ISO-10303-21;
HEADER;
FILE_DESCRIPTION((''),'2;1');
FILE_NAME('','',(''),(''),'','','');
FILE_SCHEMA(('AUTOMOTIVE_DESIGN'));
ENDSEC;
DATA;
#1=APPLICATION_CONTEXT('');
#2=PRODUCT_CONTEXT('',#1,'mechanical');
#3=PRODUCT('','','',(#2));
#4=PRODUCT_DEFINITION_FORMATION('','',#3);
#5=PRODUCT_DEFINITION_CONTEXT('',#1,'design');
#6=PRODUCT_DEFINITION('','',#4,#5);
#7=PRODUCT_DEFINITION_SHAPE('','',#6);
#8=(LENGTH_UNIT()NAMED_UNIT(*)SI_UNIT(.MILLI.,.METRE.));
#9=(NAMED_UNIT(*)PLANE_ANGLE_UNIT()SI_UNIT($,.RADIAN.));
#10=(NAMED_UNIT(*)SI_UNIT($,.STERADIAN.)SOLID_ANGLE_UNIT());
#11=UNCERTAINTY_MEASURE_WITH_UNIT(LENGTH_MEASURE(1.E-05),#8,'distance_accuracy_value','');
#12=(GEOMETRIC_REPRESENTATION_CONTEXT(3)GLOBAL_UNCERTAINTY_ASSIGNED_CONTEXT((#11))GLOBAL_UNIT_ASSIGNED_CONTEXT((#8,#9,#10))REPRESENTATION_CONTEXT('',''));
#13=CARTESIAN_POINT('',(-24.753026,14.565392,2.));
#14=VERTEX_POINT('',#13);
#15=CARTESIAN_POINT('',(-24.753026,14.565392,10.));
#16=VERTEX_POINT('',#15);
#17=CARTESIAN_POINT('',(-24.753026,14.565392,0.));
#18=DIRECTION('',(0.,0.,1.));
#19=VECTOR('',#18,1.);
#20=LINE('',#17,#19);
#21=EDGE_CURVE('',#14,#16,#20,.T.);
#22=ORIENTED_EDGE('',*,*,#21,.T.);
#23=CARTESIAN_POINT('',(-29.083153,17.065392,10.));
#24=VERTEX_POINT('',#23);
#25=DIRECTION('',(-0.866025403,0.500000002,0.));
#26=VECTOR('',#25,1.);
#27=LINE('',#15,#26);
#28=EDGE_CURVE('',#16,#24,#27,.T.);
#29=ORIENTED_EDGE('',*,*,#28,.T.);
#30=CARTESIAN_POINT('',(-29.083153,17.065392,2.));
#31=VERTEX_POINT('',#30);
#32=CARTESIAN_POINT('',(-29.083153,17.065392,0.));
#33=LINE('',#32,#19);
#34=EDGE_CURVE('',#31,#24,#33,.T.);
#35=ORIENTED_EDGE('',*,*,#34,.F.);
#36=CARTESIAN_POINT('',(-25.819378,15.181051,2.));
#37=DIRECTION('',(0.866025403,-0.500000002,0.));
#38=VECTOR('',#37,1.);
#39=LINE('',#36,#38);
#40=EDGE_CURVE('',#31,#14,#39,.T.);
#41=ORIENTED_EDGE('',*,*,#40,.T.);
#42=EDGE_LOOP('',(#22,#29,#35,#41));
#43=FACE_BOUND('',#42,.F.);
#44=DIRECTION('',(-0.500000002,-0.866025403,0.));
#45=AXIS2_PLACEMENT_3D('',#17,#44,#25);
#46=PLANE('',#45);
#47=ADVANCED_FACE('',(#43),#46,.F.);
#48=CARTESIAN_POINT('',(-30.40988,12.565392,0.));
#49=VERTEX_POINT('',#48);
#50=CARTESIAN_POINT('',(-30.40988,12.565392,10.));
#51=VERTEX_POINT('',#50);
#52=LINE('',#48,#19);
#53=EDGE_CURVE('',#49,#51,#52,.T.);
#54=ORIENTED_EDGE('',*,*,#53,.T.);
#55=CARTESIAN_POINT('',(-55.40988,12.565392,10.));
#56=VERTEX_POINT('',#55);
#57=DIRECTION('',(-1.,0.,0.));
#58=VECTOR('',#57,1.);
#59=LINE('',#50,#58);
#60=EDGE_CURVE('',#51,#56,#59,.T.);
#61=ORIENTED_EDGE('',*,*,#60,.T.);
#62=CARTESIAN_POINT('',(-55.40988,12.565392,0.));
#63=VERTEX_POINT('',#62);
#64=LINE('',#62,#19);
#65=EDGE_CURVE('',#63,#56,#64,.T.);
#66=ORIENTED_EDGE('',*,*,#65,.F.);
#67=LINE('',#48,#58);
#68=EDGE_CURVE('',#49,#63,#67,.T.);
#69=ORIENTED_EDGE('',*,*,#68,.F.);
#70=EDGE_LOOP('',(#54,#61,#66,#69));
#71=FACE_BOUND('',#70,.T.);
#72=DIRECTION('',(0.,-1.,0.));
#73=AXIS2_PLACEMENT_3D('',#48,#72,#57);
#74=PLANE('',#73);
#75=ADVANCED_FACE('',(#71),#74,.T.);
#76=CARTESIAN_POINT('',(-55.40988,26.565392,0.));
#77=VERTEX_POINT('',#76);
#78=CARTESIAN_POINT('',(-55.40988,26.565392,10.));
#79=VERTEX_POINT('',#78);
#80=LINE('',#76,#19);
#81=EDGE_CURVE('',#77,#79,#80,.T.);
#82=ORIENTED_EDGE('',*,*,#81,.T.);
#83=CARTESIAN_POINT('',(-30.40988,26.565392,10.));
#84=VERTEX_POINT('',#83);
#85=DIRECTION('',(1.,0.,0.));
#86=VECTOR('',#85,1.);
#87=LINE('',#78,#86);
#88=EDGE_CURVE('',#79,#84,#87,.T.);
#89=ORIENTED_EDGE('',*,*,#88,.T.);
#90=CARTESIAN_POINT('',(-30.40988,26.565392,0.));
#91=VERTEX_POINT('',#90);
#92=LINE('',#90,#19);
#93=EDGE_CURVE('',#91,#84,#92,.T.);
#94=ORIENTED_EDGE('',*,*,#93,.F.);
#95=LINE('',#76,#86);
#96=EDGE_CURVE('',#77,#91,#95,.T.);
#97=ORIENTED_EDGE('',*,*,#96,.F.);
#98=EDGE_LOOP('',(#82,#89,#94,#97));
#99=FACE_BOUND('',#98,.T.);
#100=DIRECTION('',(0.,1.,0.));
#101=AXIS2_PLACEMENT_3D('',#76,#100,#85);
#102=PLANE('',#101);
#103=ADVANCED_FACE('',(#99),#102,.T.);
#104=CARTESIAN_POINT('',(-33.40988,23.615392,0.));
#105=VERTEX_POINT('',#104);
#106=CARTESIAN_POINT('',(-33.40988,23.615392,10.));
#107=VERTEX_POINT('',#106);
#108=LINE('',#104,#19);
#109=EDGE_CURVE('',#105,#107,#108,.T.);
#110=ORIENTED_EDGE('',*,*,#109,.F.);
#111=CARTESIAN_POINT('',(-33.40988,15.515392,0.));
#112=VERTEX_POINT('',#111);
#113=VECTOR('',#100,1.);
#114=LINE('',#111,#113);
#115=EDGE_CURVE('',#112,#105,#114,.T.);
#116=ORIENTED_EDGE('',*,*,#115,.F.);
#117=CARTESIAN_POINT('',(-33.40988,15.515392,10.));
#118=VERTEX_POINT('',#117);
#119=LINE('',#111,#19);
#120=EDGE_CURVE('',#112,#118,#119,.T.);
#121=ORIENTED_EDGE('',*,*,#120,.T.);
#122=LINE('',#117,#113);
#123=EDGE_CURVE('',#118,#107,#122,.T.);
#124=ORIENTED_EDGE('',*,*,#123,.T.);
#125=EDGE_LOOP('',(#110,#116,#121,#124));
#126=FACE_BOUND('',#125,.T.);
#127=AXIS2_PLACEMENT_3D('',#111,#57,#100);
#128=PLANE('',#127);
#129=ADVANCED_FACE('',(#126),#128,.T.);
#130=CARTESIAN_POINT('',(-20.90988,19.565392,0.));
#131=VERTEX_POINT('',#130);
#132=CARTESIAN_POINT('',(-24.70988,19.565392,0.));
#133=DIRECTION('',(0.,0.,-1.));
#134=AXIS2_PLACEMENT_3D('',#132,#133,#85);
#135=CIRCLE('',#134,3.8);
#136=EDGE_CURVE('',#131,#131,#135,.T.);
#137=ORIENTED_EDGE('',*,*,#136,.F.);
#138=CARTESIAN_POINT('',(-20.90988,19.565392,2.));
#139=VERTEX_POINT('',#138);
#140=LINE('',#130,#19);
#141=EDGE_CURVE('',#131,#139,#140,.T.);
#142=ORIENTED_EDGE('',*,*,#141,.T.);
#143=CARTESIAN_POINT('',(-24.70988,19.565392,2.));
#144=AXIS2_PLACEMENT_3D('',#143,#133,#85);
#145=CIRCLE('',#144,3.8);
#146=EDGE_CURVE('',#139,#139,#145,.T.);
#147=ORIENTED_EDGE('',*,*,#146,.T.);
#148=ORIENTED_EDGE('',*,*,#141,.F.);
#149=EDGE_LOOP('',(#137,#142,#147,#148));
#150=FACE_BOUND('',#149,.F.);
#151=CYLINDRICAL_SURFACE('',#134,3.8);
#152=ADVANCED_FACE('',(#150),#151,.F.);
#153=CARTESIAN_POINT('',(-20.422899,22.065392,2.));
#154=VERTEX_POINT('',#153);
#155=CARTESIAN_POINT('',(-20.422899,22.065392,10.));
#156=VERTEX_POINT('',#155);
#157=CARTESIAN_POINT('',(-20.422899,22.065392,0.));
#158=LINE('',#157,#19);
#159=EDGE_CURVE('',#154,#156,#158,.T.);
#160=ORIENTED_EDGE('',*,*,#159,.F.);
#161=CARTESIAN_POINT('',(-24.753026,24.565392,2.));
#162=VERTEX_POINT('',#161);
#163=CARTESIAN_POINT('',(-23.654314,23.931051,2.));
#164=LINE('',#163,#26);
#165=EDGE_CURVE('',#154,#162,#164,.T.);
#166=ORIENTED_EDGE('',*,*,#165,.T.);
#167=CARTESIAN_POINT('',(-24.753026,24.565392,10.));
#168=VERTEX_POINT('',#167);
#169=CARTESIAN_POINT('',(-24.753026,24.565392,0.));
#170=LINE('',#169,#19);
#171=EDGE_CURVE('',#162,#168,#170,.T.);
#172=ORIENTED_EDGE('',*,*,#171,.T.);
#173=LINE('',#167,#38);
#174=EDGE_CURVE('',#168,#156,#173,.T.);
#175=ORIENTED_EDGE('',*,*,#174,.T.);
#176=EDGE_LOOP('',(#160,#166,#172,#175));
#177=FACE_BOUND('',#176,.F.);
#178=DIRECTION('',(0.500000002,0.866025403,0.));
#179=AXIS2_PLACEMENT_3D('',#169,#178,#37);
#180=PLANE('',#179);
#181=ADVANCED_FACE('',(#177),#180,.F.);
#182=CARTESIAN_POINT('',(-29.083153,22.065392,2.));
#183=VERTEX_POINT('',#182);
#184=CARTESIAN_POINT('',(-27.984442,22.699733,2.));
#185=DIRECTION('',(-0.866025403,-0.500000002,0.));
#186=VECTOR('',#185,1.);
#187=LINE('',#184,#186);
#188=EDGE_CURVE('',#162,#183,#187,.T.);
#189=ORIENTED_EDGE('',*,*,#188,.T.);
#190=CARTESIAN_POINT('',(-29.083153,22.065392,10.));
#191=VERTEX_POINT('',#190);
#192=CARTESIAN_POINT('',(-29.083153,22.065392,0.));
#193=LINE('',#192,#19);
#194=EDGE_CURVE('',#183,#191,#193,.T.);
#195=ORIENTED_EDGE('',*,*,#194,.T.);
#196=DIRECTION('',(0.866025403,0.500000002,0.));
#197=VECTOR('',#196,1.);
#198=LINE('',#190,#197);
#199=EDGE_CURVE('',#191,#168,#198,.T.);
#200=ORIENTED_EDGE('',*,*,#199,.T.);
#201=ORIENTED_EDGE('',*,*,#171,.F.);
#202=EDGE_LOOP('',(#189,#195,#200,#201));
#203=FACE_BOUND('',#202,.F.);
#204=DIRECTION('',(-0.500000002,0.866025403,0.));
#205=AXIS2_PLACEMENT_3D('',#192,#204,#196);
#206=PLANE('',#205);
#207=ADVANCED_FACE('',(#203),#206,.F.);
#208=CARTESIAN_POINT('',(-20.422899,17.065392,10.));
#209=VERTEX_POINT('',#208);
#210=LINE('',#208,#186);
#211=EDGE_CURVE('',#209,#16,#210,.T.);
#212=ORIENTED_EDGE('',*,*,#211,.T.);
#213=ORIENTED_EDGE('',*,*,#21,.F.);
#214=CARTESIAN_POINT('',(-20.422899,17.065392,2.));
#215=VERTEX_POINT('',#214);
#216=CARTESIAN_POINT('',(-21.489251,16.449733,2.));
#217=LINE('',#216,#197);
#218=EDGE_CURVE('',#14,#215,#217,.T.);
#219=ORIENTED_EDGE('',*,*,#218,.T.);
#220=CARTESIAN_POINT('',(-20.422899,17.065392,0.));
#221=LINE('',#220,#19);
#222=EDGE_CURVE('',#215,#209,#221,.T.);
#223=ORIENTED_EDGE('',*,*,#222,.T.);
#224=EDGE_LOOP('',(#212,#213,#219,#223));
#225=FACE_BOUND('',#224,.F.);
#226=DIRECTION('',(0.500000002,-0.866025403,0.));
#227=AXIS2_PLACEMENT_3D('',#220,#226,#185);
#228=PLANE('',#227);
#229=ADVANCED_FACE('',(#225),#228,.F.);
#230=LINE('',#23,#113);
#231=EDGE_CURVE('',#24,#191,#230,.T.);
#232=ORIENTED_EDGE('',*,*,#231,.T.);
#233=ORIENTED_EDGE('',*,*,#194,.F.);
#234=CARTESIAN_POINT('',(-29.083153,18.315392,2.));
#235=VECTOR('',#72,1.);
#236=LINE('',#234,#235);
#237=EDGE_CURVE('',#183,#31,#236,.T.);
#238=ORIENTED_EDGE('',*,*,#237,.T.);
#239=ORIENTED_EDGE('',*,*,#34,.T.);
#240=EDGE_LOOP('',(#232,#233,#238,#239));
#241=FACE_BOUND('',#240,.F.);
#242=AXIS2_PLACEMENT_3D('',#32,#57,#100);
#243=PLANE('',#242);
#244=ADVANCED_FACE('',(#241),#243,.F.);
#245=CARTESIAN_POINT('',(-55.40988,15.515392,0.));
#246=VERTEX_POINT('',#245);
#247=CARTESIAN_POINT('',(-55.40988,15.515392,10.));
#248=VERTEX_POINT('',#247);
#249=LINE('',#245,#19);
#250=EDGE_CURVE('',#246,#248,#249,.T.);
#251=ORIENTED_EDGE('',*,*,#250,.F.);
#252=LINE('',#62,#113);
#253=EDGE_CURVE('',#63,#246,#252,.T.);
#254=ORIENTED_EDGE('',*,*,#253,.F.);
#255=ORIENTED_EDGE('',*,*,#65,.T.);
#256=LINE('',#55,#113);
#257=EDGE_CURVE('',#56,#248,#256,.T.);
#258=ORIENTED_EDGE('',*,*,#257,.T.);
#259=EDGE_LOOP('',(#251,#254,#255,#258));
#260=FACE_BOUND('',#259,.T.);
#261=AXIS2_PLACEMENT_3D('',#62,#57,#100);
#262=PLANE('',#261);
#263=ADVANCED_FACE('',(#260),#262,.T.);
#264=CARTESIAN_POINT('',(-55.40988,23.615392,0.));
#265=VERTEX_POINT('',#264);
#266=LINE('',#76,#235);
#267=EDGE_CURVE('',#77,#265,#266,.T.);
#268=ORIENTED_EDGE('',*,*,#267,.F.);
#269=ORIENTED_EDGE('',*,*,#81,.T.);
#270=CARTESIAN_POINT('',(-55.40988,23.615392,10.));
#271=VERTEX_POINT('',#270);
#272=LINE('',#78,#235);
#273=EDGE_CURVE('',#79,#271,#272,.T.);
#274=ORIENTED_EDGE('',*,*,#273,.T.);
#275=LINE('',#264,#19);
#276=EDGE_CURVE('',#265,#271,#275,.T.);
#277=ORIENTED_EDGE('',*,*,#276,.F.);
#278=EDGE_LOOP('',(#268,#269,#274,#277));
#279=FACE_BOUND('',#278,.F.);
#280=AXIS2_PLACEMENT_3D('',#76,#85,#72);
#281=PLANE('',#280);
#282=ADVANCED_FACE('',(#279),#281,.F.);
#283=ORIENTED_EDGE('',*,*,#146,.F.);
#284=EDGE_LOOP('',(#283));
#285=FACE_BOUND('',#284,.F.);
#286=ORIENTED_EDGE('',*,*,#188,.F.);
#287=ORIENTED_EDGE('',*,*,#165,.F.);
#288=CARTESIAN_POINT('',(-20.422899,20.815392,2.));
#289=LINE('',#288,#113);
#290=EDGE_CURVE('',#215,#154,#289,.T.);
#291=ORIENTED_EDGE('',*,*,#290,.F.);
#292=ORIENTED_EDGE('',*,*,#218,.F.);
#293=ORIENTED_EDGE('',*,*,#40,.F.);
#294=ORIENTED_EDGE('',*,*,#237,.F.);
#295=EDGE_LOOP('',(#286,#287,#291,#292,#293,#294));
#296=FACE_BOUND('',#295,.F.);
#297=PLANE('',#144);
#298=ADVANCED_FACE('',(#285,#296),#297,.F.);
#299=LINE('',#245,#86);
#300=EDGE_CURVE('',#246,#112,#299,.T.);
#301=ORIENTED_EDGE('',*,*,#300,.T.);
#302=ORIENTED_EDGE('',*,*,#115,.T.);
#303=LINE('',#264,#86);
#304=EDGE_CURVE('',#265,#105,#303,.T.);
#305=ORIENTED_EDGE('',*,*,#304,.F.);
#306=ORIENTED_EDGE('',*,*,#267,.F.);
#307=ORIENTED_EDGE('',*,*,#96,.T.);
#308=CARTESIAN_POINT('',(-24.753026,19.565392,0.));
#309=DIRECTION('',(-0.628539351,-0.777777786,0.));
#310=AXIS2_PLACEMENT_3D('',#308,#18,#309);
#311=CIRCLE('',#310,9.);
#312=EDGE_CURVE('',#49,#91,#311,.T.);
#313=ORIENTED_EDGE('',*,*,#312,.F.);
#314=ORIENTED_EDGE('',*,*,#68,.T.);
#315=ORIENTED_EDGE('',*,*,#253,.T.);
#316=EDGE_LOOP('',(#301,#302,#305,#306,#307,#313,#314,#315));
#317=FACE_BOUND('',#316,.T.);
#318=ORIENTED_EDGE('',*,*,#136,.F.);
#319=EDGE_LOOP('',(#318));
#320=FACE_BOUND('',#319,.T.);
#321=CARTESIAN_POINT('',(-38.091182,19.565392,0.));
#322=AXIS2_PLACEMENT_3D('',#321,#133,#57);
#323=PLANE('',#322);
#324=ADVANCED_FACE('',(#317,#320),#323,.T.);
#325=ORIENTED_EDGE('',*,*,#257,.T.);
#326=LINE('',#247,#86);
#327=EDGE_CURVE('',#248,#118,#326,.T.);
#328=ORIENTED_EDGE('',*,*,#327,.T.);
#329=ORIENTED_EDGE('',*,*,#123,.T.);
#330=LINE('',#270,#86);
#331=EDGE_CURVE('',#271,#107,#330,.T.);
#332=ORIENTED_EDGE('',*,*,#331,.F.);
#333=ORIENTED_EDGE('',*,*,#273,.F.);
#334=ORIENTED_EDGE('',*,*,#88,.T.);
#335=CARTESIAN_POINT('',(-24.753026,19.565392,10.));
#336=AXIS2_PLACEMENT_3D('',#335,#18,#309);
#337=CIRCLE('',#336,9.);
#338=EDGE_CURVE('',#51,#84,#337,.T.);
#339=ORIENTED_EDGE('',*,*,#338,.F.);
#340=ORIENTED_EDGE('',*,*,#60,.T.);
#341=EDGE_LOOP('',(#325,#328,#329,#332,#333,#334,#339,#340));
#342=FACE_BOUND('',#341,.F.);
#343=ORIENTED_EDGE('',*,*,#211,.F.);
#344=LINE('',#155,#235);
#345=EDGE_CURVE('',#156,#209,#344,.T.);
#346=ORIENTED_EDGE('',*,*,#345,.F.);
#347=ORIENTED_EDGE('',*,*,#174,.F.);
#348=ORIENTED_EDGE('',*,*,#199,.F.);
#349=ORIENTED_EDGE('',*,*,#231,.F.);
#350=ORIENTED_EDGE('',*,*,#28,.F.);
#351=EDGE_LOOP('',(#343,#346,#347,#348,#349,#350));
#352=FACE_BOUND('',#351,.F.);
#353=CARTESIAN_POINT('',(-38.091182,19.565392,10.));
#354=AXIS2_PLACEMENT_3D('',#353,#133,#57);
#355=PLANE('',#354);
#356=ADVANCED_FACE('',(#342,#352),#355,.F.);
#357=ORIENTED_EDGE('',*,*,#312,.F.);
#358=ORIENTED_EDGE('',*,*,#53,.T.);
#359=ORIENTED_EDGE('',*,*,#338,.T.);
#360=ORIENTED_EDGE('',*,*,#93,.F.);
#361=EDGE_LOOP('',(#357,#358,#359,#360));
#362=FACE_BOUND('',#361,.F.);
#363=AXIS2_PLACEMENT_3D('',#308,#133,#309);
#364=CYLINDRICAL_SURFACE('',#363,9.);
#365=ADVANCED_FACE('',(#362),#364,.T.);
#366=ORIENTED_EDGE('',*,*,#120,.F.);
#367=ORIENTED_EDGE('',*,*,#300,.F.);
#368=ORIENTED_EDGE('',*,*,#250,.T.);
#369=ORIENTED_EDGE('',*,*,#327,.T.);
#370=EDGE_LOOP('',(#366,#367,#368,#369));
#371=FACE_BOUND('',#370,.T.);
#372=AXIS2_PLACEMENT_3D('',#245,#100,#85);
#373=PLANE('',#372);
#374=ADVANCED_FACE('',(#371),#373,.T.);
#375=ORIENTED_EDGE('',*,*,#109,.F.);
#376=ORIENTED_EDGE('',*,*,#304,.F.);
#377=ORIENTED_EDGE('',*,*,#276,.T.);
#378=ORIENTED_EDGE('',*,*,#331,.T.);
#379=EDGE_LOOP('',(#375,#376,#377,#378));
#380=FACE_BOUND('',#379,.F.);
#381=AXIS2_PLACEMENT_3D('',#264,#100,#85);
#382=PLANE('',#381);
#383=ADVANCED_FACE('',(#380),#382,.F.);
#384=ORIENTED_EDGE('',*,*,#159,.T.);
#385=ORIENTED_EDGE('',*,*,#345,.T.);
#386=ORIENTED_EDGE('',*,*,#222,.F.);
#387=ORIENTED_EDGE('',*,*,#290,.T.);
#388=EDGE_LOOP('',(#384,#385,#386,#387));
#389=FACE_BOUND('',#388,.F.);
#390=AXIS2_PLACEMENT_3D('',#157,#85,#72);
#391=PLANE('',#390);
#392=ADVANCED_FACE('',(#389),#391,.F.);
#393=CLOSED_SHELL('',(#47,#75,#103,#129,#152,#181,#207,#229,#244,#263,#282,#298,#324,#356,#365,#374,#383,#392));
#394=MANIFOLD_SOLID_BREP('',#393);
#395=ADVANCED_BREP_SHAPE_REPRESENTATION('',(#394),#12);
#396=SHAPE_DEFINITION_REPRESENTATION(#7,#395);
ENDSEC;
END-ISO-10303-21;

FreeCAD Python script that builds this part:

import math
import FreeCAD as App
import Part
import Sketcher

V = App.Vector
Q = App.Units.Quantity

doc = App.newDocument("Part")
body = doc.addObject("PartDesign::Body", "Body")

sketch1 = body.newObject("Sketcher::SketchObject", "Sketch")
sketch1.AttachmentSupport = (doc.getObject("XY_Plane"), [""])
sketch1.MapMode = "FlatFace"
sketch1.addGeometry([
    Part.LineSegment(V(-30.4, 26.6, 0), V(-55.4, 26.6, 0)),
    Part.LineSegment(V(-55.4, 26.6, 0), V(-55.4, 23.6, 0)),
    Part.LineSegment(V(-55.4, 23.6, 0), V(-33.4, 23.6, 0)),
    Part.LineSegment(V(-33.4, 23.6, 0), V(-33.4, 15.5, 0)),
    Part.LineSegment(V(-33.4, 15.5, 0), V(-55.4, 15.5, 0)),
    Part.LineSegment(V(-55.4, 15.5, 0), V(-55.4, 12.6, 0)),
    Part.LineSegment(V(-55.4, 12.6, 0), V(-30.4, 12.6, 0)),
    Part.ArcOfCircle(Part.Circle(V(-24.8, 19.6, 0), V(0, 0, 1), 9), math.radians(-129), math.radians(129)),
    Part.LineSegment(V(-20.4, 22.1, 0), V(-20.4, 17.1, 0)),
    Part.LineSegment(V(-20.4, 17.1, 0), V(-24.8, 14.6, 0)),
    Part.LineSegment(V(-24.8, 14.6, 0), V(-29.1, 17.1, 0)),
    Part.LineSegment(V(-29.1, 17.1, 0), V(-29.1, 22.1, 0)),
    Part.LineSegment(V(-29.1, 22.1, 0), V(-24.8, 24.6, 0)),
    Part.LineSegment(V(-24.8, 24.6, 0), V(-20.4, 22.1, 0)),
], False)
sketch1.addConstraint([
    Sketcher.Constraint("Coincident", 0, 2, 1, 1),
    Sketcher.Constraint("Coincident", 1, 2, 2, 1),
    Sketcher.Constraint("Coincident", 2, 2, 3, 1),
    Sketcher.Constraint("Coincident", 3, 2, 4, 1),
    Sketcher.Constraint("Coincident", 4, 2, 5, 1),
    Sketcher.Constraint("Coincident", 5, 2, 6, 1),
    Sketcher.Constraint("Coincident", 6, 2, 7, 1),
    Sketcher.Constraint("Coincident", 7, 2, 0, 1),
    Sketcher.Constraint("Coincident", 8, 2, 9, 1),
    Sketcher.Constraint("Coincident", 9, 2, 10, 1),
    Sketcher.Constraint("Coincident", 10, 2, 11, 1),
    Sketcher.Constraint("Coincident", 11, 2, 12, 1),
    Sketcher.Constraint("Coincident", 12, 2, 13, 1),
    Sketcher.Constraint("Coincident", 13, 2, 8, 1),
    Sketcher.Constraint("Horizontal", 0),
    Sketcher.Constraint("Vertical", 1),
    Sketcher.Constraint("Horizontal", 2),
    Sketcher.Constraint("Vertical", 3),
    Sketcher.Constraint("Horizontal", 4),
    Sketcher.Constraint("Vertical", 5),
    Sketcher.Constraint("Horizontal", 6),
    Sketcher.Constraint("Vertical", 8),
    Sketcher.Constraint("Vertical", 11),
    Sketcher.Constraint("Parallel", 9, 12),
    Sketcher.Constraint("Parallel", 10, 13),
    Sketcher.Constraint("Horizontal", 8, 2, 10, 2),
    Sketcher.Constraint("Horizontal", 11, 2, 13, 2),
    Sketcher.Constraint("Vertical", 1, 2, 4, 2),
    Sketcher.Constraint("Vertical", 6, 2, 7, 2),
    Sketcher.Constraint("Vertical", 7, 3, 9, 2),
    Sketcher.Constraint("Vertical", 9, 2, 12, 2),
    Sketcher.Constraint("Equal", 1, 5),
    Sketcher.Constraint("Radius", 7, Q("9 mm")),
    Sketcher.Constraint("DistanceX", 0, 2, 0, 1, Q("25 mm")),
    Sketcher.Constraint("DistanceX", 2, 1, 2, 2, Q("22 mm")),
    Sketcher.Constraint("DistanceY", 8, 2, 8, 1, Q("5 mm")),
    Sketcher.Constraint("Angle", 9, Q("-150 deg")),
    Sketcher.Constraint("Distance", 9, Q("5 mm")),
    Sketcher.Constraint("DistanceY", 3, 2, 3, 1, Q("8.1 mm")),
    Sketcher.Constraint("DistanceY", 7, 3, 0, 2, Q("7 mm")),
    Sketcher.Constraint("DistanceY", 9, 2, 7, 3, Q("5 mm")),
    Sketcher.Constraint("DistanceX", 8, 2, -1, 1, Q("20.422899 mm")),
    Sketcher.Constraint("DistanceY", -1, 1, 7, 3, Q("19.565392 mm")),
])
pad1 = body.newObject("PartDesign::Pad", "Pad")
pad1.Profile = sketch1
pad1.Length = 10

sketch2 = body.newObject("Sketcher::SketchObject", "Sketch001")
sketch2.AttachmentSupport = (doc.getObject("XY_Plane"), [""])
sketch2.MapMode = "FlatFace"
sketch2.addGeometry([
    Part.Circle(V(-24.7, 19.6, 0), V(0, 0, 1), 6),
    Part.Circle(V(-24.7, 19.6, 0), V(0, 0, 1), 3.8),
], False)
sketch2.addConstraint([
    Sketcher.Constraint("Coincident", 1, 3, 0, 3),
    Sketcher.Constraint("Diameter", 0, Q("12 mm")),
    Sketcher.Constraint("Diameter", 1, Q("7.6 mm")),
    Sketcher.Constraint("DistanceX", 0, 3, -1, 1, Q("24.70988 mm")),
    Sketcher.Constraint("DistanceY", -1, 1, 0, 3, Q("19.565392 mm")),
])
pad2 = body.newObject("PartDesign::Pad", "Pad001")
pad2.Profile = sketch2
pad2.Length = 2

doc.recompute()
